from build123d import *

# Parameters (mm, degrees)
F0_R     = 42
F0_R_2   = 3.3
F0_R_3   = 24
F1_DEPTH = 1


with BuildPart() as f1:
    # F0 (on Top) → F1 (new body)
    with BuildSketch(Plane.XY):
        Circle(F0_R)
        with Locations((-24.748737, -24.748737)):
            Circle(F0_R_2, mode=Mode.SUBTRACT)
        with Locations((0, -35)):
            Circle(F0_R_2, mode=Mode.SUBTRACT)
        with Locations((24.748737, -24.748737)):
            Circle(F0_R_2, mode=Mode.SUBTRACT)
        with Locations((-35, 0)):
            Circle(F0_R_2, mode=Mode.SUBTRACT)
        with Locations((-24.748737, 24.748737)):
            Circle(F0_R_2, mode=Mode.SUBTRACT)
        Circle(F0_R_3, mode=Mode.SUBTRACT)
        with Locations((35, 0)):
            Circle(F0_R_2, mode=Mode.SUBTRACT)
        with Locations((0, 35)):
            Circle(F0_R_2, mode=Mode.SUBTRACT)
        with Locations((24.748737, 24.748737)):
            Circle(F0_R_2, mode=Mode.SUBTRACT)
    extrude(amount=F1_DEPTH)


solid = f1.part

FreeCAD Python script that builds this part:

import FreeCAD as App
import Part
import Sketcher
from FreeCAD import Vector

doc = App.newDocument("Part")
body = doc.addObject("PartDesign::Body", "Body")

sketch1 = doc.addObject("Sketcher::SketchObject", "Sketch")
body.addObject(sketch1)
sketch1.AttachmentSupport = (doc.XY_Plane, [""])
sketch1.MapMode = "FlatFace"
sketch1.addGeometry(Part.Circle(Vector(0, 0, 0), Vector(0, 0, 1), 42), False)
sketch1.addGeometry(Part.Circle(Vector(-24.7, -24.7, 0), Vector(0, 0, 1), 3.3), False)
sketch1.addGeometry(Part.Circle(Vector(0, -35, 0), Vector(0, 0, 1), 3.3), False)
sketch1.addGeometry(Part.Circle(Vector(24.7, -24.7, 0), Vector(0, 0, 1), 3.3), False)
sketch1.addGeometry(Part.Circle(Vector(-35, 0, 0), Vector(0, 0, 1), 3.3), False)
sketch1.addGeometry(Part.Circle(Vector(-24.7, 24.7, 0), Vector(0, 0, 1), 3.3), False)
sketch1.addGeometry(Part.Circle(Vector(0, 0, 0), Vector(0, 0, 1), 24), False)
sketch1.addGeometry(Part.Circle(Vector(35, 0, 0), Vector(0, 0, 1), 3.3), False)
sketch1.addGeometry(Part.Circle(Vector(0, 35, 0), Vector(0, 0, 1), 3.3), False)
sketch1.addGeometry(Part.Circle(Vector(24.7, 24.7, 0), Vector(0, 0, 1), 3.3), False)
sketch1.addConstraint(Sketcher.Constraint("Coincident", 0, 3, -1, 1))
sketch1.addConstraint(Sketcher.Constraint("Coincident", 6, 3, -1, 1))
sketch1.addConstraint(Sketcher.Constraint("Equal", 1, 2))
sketch1.addConstraint(Sketcher.Constraint("Equal", 2, 3))
sketch1.addConstraint(Sketcher.Constraint("Equal", 3, 4))
sketch1.addConstraint(Sketcher.Constraint("Equal", 4, 5))
sketch1.addConstraint(Sketcher.Constraint("Equal", 5, 7))
sketch1.addConstraint(Sketcher.Constraint("Equal", 7, 8))
sketch1.addConstraint(Sketcher.Constraint("Equal", 8, 9))
sketch1.addConstraint(Sketcher.Constraint("Symmetric", 3, 3, 5, 3, -1, 1))
sketch1.addConstraint(Sketcher.Constraint("Symmetric", 4, 3, 7, 3, -1, 1))
sketch1.addConstraint(Sketcher.Constraint("Symmetric", 2, 3, 8, 3, -1, 1))
sketch1.addConstraint(Sketcher.Constraint("Symmetric", 1, 3, 9, 3, -1, 1))
sketch1.addConstraint(Sketcher.Constraint("Symmetric", 1, 3, 3, 3, -2))
sketch1.addConstraint(Sketcher.Constraint("PointOnObject", 2, 3, -2))
sketch1.addConstraint(Sketcher.Constraint("PointOnObject", 4, 3, -1))
sketch1.addConstraint(Sketcher.Constraint("Diameter", 0, 84.0))
sketch1.addConstraint(Sketcher.Constraint("Diameter", 6, 48.0))
sketch1.addConstraint(Sketcher.Constraint("Diameter", 1, 6.6))
sketch1.addConstraint(Sketcher.Constraint("DistanceY", 2, 3, -1, 1, 35.0))
sketch1.addConstraint(Sketcher.Constraint("DistanceX", 4, 3, -1, 1, 35.0))
sketch1.addConstraint(Sketcher.Constraint("DistanceX", 1, 3, -1, 1, 24.748737))
sketch1.addConstraint(Sketcher.Constraint("DistanceY", 1, 3, -1, 1, 24.748737))
pad1 = doc.addObject("PartDesign::Pad", "Pad")
body.addObject(pad1)
pad1.Profile = sketch1
pad1.Length = 1

doc.recompute()
